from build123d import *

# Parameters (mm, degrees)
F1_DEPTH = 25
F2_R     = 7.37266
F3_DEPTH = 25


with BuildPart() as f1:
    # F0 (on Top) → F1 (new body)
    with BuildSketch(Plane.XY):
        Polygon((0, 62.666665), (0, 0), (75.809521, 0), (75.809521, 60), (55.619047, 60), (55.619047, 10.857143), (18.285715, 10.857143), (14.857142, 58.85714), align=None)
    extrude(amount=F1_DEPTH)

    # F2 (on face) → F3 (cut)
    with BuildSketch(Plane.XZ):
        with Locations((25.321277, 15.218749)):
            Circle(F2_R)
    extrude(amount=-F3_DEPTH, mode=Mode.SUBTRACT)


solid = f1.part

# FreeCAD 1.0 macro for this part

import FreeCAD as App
import Part
import Sketcher
from FreeCAD import Vector

doc = App.newDocument("Part")
params = doc.addObject("Spreadsheet::Sheet", "Params")
for row, (alias, value) in enumerate([
    ("sketch1_height", "60 mm"),
    ("pad1_length", "25 mm"),
    ("pocket1_length", "25 mm"),
], start=1):
    params.set(f"A{row}", alias)
    params.set(f"B{row}", "=" + value)
    params.setAlias(f"B{row}", alias)

body = doc.addObject("PartDesign::Body", "Body")

# Sketch on XY plane
sketch1 = body.newObject("Sketcher::SketchObject", "Sketch")
sketch1.AttachmentSupport = (doc.getObject("XY_Plane"), [""])
sketch1.MapMode = "FlatFace"
sketch1.addGeometry([
    Part.LineSegment(Vector(0, 62.666665, 0), Vector(0, 0, 0)),  # 0
    Part.LineSegment(Vector(0, 0, 0), Vector(75.809521, 0, 0)),  # 1
    Part.LineSegment(Vector(75.809521, 0, 0), Vector(75.809521, 60, 0)),  # 2
    Part.LineSegment(Vector(75.809521, 60, 0), Vector(55.619047, 60, 0)),  # 3
    Part.LineSegment(Vector(55.619047, 60, 0), Vector(55.619047, 10.857143, 0)),  # 4
    Part.LineSegment(Vector(55.619047, 10.857143, 0), Vector(18.285715, 10.857143, 0)),  # 5
    Part.LineSegment(Vector(18.285715, 10.857143, 0), Vector(14.857142, 58.85714, 0)),  # 6
    Part.LineSegment(Vector(14.857142, 58.85714, 0), Vector(0, 62.666665, 0)),  # 7
], False)
sketch1.addConstraint([
    Sketcher.Constraint("Coincident", 0, 2, 1, 1),
    Sketcher.Constraint("Coincident", 1, 2, 2, 1),
    Sketcher.Constraint("Coincident", 2, 2, 3, 1),
    Sketcher.Constraint("Coincident", 3, 2, 4, 1),
    Sketcher.Constraint("Coincident", 4, 2, 5, 1),
    Sketcher.Constraint("Coincident", 5, 2, 6, 1),
    Sketcher.Constraint("Coincident", 6, 2, 7, 1),
    Sketcher.Constraint("Coincident", 7, 2, 0, 1),
    Sketcher.Constraint("Vertical", 0),
    Sketcher.Constraint("Horizontal", 1),
    Sketcher.Constraint("Vertical", 2),
    Sketcher.Constraint("Horizontal", 3),
    Sketcher.Constraint("Vertical", 4),
    Sketcher.Constraint("Horizontal", 5),
    Sketcher.Constraint("Coincident", 0, 2, -1, 1),
    Sketcher.Constraint("DistanceY", 2, 1, 2, 2, 60.0),
    Sketcher.Constraint("DistanceX", 1, 1, 1, 2, 75.809521),
    Sketcher.Constraint("Distance", 6, 48.12229),
    Sketcher.Constraint("Distance", 7, 15.337769),
    Sketcher.Constraint("DistanceX", 3, 2, 3, 1, 20.190474),
    Sketcher.Constraint("DistanceX", 5, 2, 5, 1, 37.333332),
    Sketcher.Constraint("DistanceY", 0, 2, 0, 1, 62.666665),
    Sketcher.Constraint("DistanceY", 4, 2, 4, 1, 49.142857),
])
sketch1.setExpression("Constraints[15]", "Params.sketch1_height")
pad1 = body.newObject("PartDesign::Pad", "Pad")
pad1.Profile = sketch1
pad1.setExpression("Length", "Params.pad1_length")

# Sketch on XZ plane
sketch2 = body.newObject("Sketcher::SketchObject", "Sketch001")
sketch2.AttachmentSupport = (doc.getObject("XZ_Plane"), [""])
sketch2.MapMode = "FlatFace"
sketch2.addGeometry(Part.Circle(Vector(25.321277, 15.218749, 0), Vector(0, 0, 1), 7.37266), False)
sketch2.addConstraint([
    Sketcher.Constraint("Diameter", 0, 14.74532),
    Sketcher.Constraint("DistanceY", -1, 1, 0, 3, 15.218749),
    Sketcher.Constraint("DistanceX", -1, 1, 0, 3, 25.321277),
])
pocket1 = body.newObject("PartDesign::Pocket", "Pocket")
pocket1.Profile = sketch2
pocket1.setExpression("Length", "Params.pocket1_length")

doc.recompute()
